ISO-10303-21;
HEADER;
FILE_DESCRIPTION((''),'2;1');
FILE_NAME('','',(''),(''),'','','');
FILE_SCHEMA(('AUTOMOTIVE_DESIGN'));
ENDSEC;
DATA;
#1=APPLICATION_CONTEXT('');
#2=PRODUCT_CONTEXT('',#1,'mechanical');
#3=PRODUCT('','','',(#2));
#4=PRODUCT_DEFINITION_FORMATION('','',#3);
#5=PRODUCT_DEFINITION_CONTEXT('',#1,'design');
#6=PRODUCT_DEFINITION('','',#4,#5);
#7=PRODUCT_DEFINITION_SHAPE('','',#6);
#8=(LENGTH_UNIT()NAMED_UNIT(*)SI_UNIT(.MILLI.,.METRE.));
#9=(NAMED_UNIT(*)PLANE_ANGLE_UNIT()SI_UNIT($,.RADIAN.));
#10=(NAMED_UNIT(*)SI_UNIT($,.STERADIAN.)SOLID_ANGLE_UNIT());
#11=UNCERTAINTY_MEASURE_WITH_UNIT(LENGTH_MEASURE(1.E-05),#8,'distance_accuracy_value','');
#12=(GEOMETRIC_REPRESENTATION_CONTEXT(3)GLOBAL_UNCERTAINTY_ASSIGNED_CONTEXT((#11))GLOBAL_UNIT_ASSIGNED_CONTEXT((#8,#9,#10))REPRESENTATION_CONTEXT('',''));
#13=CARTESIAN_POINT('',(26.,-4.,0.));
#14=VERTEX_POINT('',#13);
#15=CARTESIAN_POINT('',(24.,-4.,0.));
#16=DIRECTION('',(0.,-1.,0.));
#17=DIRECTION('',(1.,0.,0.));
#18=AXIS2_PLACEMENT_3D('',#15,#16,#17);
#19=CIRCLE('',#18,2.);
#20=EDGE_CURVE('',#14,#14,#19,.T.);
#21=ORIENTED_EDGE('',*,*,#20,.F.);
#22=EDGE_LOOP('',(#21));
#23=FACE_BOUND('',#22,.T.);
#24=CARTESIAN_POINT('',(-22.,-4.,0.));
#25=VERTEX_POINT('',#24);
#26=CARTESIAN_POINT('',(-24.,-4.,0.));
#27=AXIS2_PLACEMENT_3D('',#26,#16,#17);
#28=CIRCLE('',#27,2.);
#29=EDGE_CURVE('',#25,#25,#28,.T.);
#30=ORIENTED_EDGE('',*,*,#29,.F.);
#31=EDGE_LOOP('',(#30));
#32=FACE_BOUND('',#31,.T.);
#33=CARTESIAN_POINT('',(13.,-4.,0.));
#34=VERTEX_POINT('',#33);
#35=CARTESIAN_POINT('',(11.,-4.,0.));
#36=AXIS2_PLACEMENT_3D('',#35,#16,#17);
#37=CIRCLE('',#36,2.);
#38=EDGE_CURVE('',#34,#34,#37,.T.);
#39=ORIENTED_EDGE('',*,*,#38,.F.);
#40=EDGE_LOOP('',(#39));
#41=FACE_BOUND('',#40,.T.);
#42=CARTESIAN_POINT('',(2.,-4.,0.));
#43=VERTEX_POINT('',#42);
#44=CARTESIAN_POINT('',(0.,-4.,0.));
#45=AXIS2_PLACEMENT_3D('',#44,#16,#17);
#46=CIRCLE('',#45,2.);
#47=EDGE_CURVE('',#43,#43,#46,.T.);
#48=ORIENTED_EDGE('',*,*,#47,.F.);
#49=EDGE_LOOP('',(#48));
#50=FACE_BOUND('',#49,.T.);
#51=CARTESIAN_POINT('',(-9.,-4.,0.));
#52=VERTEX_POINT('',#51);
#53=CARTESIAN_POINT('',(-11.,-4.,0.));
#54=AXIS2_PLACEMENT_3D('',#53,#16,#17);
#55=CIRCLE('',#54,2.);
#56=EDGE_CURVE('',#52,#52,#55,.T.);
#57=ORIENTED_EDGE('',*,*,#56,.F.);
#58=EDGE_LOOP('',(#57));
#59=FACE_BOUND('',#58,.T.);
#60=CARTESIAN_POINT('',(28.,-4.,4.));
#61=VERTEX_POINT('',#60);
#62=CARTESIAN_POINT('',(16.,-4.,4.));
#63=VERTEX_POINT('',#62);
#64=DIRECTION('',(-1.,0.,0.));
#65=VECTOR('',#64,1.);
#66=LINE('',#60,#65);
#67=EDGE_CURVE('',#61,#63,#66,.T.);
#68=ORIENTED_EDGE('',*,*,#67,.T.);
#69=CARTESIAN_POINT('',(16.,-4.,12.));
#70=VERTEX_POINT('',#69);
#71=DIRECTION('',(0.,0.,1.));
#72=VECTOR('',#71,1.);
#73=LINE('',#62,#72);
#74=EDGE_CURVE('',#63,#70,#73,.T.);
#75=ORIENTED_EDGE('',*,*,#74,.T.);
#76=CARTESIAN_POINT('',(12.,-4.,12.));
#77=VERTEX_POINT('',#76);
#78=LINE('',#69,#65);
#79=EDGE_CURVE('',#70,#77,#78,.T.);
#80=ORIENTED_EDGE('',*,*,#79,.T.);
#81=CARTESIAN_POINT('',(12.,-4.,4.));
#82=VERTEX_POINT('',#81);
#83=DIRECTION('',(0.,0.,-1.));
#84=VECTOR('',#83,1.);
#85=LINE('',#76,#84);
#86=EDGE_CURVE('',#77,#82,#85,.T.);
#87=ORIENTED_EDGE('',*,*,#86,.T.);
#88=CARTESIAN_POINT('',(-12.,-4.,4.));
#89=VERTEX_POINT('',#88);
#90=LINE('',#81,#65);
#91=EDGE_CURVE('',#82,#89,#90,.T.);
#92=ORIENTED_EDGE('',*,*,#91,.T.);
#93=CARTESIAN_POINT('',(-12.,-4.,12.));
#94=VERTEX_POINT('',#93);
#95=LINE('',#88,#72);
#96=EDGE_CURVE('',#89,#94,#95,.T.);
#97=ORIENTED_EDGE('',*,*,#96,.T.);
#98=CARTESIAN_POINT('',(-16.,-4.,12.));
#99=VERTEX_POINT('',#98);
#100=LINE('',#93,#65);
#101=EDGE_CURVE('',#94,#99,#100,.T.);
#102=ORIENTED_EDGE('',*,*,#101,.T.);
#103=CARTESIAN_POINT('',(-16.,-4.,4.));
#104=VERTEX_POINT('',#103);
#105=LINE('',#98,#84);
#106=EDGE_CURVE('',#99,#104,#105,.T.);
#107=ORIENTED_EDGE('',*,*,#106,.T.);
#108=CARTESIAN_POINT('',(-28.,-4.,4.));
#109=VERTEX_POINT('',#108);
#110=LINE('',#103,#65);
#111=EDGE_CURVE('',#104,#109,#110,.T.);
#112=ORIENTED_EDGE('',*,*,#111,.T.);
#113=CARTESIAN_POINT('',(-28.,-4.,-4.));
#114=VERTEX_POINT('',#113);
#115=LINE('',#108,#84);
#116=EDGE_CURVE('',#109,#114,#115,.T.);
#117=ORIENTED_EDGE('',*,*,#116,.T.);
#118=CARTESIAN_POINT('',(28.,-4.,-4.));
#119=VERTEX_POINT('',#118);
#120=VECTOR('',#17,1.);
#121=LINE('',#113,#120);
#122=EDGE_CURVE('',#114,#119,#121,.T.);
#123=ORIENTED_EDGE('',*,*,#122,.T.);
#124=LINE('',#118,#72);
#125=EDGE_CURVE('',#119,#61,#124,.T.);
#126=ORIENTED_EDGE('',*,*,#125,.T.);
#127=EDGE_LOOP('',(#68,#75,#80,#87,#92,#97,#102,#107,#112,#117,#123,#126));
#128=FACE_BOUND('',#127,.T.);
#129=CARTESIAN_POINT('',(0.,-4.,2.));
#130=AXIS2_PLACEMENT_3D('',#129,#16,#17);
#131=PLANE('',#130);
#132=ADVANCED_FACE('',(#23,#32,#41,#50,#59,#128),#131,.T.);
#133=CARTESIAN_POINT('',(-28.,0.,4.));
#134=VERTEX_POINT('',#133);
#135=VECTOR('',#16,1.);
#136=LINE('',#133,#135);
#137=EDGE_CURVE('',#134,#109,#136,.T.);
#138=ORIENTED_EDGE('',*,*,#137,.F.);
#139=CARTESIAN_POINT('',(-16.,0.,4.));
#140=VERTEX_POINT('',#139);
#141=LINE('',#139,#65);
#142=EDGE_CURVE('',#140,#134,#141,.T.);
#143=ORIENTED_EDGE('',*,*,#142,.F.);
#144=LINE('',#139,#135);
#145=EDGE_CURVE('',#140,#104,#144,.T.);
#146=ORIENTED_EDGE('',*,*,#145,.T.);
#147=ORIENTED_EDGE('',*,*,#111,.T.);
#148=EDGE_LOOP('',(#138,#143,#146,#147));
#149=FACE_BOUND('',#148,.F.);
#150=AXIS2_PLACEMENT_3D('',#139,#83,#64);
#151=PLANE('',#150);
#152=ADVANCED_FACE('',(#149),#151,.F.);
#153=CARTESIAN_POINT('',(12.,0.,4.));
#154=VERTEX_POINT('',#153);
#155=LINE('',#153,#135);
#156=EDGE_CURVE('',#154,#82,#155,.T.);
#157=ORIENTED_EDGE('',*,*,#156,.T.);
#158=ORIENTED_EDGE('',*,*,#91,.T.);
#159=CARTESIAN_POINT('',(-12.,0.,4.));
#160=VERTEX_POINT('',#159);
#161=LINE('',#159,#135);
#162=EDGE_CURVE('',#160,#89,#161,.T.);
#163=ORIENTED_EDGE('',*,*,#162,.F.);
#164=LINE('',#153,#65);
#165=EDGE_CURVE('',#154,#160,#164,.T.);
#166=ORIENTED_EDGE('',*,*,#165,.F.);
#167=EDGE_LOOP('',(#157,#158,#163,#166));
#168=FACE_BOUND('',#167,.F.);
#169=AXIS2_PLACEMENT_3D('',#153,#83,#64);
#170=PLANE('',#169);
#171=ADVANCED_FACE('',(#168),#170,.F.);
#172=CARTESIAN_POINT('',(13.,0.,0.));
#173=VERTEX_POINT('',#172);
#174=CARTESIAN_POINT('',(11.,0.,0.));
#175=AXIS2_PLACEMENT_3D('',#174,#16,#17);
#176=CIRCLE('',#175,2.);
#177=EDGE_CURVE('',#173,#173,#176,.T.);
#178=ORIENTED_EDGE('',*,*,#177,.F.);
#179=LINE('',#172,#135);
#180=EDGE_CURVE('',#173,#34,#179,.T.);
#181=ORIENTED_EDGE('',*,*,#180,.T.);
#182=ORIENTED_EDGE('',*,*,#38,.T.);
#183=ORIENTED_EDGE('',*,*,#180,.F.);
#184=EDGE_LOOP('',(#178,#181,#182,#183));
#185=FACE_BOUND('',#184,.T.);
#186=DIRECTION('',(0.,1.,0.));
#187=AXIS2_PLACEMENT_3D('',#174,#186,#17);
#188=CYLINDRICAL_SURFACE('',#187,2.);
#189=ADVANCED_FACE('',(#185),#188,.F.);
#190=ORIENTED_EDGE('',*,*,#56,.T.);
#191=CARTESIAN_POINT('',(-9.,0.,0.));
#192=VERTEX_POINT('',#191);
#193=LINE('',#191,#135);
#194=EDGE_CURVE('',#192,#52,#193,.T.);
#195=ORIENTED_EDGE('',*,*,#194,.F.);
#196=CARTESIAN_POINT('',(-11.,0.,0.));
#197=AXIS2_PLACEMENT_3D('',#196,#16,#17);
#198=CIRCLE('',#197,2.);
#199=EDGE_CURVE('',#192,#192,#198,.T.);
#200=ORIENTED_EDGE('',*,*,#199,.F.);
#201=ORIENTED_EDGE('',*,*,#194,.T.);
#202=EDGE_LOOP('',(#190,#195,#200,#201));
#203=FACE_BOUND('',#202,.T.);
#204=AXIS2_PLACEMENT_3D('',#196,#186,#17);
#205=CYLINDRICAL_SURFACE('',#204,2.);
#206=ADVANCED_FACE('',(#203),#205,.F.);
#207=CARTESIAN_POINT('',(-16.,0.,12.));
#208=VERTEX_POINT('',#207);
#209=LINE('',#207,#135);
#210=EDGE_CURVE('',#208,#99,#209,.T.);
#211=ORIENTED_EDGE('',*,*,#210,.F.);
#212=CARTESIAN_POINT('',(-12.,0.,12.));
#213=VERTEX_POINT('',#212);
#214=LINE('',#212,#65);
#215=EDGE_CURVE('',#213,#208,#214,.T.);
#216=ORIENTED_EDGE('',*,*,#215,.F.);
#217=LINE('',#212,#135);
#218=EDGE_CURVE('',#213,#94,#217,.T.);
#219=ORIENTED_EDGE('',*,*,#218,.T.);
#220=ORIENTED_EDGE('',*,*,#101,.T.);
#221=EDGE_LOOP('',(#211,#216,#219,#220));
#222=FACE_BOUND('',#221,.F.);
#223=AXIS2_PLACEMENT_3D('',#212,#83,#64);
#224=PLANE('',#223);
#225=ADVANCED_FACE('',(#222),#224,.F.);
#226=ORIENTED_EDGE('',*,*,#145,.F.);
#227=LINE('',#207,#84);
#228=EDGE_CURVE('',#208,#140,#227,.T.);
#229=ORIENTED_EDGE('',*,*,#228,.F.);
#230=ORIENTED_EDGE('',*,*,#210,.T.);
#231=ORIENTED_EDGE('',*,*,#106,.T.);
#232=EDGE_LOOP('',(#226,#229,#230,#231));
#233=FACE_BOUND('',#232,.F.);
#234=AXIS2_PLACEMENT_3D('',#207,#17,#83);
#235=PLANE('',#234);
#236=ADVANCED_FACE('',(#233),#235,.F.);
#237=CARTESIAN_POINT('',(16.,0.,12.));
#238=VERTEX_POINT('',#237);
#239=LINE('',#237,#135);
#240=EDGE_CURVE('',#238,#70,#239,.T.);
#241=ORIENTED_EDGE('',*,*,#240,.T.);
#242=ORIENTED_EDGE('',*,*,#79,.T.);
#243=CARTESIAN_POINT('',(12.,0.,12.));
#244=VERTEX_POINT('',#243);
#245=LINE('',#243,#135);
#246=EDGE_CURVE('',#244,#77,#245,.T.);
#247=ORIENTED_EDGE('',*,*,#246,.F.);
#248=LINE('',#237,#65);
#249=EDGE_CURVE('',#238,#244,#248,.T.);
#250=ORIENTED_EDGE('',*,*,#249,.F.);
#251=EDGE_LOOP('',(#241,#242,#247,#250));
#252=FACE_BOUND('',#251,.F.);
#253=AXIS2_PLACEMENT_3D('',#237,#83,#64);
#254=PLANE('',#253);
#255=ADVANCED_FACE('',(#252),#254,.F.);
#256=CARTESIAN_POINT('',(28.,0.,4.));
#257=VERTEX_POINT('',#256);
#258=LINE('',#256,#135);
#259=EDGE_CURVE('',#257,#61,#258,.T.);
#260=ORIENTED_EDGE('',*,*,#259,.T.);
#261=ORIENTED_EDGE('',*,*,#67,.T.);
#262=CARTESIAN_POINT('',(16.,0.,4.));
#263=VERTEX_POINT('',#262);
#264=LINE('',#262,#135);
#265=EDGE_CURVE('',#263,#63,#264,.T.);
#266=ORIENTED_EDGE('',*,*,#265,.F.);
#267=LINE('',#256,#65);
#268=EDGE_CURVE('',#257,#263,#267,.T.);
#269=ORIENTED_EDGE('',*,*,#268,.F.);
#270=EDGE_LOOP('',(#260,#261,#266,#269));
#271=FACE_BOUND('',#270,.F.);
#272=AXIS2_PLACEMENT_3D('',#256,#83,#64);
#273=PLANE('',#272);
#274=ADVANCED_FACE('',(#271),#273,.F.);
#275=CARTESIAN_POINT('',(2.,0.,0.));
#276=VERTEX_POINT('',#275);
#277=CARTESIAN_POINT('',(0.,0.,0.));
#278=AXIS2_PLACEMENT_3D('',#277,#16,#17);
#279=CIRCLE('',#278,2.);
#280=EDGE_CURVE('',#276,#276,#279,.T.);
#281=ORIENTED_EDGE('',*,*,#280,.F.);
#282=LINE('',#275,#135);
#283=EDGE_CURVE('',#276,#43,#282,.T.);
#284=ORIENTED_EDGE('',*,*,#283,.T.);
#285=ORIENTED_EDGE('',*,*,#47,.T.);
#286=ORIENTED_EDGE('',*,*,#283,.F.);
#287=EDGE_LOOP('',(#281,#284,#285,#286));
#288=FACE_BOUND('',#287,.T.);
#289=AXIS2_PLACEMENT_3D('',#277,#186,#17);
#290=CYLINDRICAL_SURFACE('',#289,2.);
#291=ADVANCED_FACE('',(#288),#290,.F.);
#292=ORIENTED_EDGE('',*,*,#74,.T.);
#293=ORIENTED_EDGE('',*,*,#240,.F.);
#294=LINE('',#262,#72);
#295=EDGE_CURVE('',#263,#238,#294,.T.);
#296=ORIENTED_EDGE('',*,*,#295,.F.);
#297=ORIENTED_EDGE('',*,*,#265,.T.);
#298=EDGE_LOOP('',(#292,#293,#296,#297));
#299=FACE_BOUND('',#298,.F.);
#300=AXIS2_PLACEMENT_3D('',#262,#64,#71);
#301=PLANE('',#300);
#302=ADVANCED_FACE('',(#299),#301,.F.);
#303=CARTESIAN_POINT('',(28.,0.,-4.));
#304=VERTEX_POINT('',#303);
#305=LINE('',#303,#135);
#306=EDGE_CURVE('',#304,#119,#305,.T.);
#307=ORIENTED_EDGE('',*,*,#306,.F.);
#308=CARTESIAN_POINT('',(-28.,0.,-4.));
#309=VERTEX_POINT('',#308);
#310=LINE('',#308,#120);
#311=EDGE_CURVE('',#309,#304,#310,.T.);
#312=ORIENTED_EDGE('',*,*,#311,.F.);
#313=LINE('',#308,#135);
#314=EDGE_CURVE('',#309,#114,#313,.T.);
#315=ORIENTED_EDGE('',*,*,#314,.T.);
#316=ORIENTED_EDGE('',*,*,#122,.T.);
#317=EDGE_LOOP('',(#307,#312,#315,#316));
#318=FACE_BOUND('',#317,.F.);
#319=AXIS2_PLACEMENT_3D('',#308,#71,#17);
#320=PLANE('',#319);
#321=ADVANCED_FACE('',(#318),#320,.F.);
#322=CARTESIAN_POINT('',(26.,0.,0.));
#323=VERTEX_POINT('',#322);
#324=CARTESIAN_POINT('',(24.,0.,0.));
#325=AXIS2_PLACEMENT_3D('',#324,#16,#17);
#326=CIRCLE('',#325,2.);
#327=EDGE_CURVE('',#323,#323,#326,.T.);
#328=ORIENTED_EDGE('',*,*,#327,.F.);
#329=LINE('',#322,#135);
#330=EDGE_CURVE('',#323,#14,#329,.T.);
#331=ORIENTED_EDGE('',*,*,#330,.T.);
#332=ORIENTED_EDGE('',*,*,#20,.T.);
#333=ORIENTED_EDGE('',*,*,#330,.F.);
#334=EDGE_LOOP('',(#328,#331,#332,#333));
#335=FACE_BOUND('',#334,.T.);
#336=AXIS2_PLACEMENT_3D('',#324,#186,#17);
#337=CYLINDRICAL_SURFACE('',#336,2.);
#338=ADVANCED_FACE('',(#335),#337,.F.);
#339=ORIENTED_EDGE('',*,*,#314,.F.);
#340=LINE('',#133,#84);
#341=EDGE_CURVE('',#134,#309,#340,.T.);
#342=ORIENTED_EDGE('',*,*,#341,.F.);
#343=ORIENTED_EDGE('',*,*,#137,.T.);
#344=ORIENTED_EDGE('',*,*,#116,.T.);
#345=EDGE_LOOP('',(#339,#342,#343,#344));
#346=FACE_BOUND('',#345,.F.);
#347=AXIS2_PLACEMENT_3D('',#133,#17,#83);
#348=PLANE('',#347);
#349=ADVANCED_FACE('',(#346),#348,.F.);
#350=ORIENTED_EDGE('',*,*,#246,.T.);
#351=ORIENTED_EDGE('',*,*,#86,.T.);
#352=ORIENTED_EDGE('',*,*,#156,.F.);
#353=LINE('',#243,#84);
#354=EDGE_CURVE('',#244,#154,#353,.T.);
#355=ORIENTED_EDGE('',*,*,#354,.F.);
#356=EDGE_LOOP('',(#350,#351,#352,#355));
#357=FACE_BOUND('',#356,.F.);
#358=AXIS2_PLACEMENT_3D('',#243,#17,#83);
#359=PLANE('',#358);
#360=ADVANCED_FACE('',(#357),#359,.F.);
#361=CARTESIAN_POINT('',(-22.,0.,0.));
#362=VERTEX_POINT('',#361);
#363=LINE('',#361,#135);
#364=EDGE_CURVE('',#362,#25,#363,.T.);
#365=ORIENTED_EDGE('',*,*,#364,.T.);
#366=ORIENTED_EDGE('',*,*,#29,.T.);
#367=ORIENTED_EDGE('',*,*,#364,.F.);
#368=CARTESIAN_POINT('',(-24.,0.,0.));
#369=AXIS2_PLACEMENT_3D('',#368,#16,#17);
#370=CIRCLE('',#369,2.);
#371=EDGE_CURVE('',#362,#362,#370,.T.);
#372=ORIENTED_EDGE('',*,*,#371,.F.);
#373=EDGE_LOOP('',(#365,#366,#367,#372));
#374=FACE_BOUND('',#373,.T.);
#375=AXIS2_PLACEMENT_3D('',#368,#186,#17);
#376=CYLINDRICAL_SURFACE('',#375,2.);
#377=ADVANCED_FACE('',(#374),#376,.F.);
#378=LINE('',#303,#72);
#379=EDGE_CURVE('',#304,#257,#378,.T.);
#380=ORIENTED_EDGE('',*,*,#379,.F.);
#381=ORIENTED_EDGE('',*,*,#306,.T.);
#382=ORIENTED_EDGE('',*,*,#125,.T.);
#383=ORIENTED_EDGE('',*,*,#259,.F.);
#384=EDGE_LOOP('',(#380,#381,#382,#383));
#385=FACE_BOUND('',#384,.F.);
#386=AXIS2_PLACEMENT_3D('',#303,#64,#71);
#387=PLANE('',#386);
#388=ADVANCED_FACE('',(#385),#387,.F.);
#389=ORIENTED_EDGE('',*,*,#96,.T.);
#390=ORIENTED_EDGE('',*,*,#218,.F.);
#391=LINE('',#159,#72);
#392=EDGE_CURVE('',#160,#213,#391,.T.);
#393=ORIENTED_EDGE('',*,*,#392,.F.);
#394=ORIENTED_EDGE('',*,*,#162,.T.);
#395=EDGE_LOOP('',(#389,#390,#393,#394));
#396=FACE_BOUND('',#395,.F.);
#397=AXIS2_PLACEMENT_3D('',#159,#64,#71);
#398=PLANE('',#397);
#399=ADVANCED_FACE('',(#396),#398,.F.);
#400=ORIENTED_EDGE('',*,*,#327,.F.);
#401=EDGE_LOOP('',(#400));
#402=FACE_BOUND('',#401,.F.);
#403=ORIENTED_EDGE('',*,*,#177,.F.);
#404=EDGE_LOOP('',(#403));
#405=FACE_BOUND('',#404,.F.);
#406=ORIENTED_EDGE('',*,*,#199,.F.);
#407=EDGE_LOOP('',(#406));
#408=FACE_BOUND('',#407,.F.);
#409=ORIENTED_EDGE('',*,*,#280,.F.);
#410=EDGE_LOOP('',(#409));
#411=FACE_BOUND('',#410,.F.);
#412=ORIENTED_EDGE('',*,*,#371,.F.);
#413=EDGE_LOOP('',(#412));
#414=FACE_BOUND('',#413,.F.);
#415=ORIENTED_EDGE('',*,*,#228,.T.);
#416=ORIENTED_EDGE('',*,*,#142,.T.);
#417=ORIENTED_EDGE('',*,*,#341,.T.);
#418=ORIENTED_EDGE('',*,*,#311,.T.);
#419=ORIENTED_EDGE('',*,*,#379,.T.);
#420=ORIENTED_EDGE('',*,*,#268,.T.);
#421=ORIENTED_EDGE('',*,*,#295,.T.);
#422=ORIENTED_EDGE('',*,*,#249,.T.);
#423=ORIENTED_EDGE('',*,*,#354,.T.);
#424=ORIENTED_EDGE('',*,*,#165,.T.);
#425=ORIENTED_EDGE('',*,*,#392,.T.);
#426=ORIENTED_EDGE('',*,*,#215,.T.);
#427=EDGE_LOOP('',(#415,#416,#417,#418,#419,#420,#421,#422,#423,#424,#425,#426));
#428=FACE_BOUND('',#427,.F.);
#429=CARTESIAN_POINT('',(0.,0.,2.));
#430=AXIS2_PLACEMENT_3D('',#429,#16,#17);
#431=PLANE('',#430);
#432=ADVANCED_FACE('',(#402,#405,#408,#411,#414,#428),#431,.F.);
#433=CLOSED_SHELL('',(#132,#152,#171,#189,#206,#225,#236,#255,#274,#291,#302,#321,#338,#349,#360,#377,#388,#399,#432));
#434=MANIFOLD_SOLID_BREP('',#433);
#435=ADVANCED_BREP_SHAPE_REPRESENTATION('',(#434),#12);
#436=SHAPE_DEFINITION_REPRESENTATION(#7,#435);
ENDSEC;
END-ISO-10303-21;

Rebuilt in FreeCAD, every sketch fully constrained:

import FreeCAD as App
import Part
import Sketcher

V = App.Vector


def add_polygon(sketch, points):
    """Adds a closed chain of lines whose ends are joined by coincident constraints."""
    first, n = sketch.GeometryCount, len(points)
    for a, b in zip(points, points[1:] + points[:1]):
        sketch.addGeometry(Part.LineSegment(App.Vector(*a, 0), App.Vector(*b, 0)), False)
    for i in range(n):
        sketch.addConstraint(Sketcher.Constraint("Coincident", first + i, 2, first + (i + 1) % n, 1))

doc = App.newDocument("Part")
body = doc.addObject("PartDesign::Body", "Body")

sketch1 = doc.addObject("Sketcher::SketchObject", "Sketch")
body.addObject(sketch1)
sketch1.AttachmentSupport = (doc.XZ_Plane, [""])
sketch1.MapMode = "FlatFace"
add_polygon(sketch1, [(-28, 4), (-28, -4), (28, -4), (28, 4), (16, 4), (16, 12), (12, 12), (12, 4), (-12, 4), (-12, 12), (-16, 12), (-16, 4)])
sketch1.addGeometry(Part.Circle(V(-24, 0, 0), V(0, 0, 1), 2), False)
sketch1.addGeometry(Part.Circle(V(-11, 0, 0), V(0, 0, 1), 2), False)
sketch1.addGeometry(Part.Circle(V(0, 0, 0), V(0, 0, 1), 2), False)
sketch1.addGeometry(Part.Circle(V(11, 0, 0), V(0, 0, 1), 2), False)
sketch1.addGeometry(Part.Circle(V(24, 0, 0), V(0, 0, 1), 2), False)
sketch1.addConstraint(Sketcher.Constraint("Vertical", 0))
sketch1.addConstraint(Sketcher.Constraint("Horizontal", 1))
sketch1.addConstraint(Sketcher.Constraint("Vertical", 2))
sketch1.addConstraint(Sketcher.Constraint("Horizontal", 3))
sketch1.addConstraint(Sketcher.Constraint("Vertical", 4))
sketch1.addConstraint(Sketcher.Constraint("Horizontal", 5))
sketch1.addConstraint(Sketcher.Constraint("Vertical", 6))
sketch1.addConstraint(Sketcher.Constraint("Horizontal", 7))
sketch1.addConstraint(Sketcher.Constraint("Vertical", 8))
sketch1.addConstraint(Sketcher.Constraint("Horizontal", 9))
sketch1.addConstraint(Sketcher.Constraint("Vertical", 10))
sketch1.addConstraint(Sketcher.Constraint("Horizontal", 11))
sketch1.addConstraint(Sketcher.Constraint("Coincident", 14, 3, -1, 1))
sketch1.addConstraint(Sketcher.Constraint("Equal", 12, 13))
sketch1.addConstraint(Sketcher.Constraint("Equal", 13, 14))
sketch1.addConstraint(Sketcher.Constraint("Equal", 14, 15))
sketch1.addConstraint(Sketcher.Constraint("Equal", 15, 16))
sketch1.addConstraint(Sketcher.Constraint("Symmetric", 13, 3, 15, 3, -1, 1))
sketch1.addConstraint(Sketcher.Constraint("Symmetric", 12, 3, 16, 3, -1, 1))
sketch1.addConstraint(Sketcher.Constraint("Symmetric", 0, 2, 2, 2, -1, 1))
sketch1.addConstraint(Sketcher.Constraint("Symmetric", 5, 2, 8, 2, -2))
sketch1.addConstraint(Sketcher.Constraint("Symmetric", 3, 2, 10, 2, -2))
sketch1.addConstraint(Sketcher.Constraint("PointOnObject", 12, 3, -1))
sketch1.addConstraint(Sketcher.Constraint("PointOnObject", 13, 3, -1))
sketch1.addConstraint(Sketcher.Constraint("Horizontal", 3, 2, 6, 2))
sketch1.addConstraint(Sketcher.Constraint("Equal", 2, 4))
sketch1.addConstraint(Sketcher.Constraint("Diameter", 12, 4.0))
sketch1.addConstraint(Sketcher.Constraint("DistanceX", 1, 1, 1, 2, 56.0))
sketch1.addConstraint(Sketcher.Constraint("DistanceX", 3, 2, 3, 1, 12.0))
sketch1.addConstraint(Sketcher.Constraint("DistanceX", 5, 2, 5, 1, 4.0))
sketch1.addConstraint(Sketcher.Constraint("DistanceY", 0, 2, 0, 1, 8.0))
sketch1.addConstraint(Sketcher.Constraint("DistanceX", 12, 3, -1, 1, 24.0))
sketch1.addConstraint(Sketcher.Constraint("DistanceX", 13, 3, -1, 1, 11.0))
pad1 = doc.addObject("PartDesign::Pad", "Pad")
body.addObject(pad1)
pad1.Profile = sketch1
pad1.Length = 4

doc.recompute()
